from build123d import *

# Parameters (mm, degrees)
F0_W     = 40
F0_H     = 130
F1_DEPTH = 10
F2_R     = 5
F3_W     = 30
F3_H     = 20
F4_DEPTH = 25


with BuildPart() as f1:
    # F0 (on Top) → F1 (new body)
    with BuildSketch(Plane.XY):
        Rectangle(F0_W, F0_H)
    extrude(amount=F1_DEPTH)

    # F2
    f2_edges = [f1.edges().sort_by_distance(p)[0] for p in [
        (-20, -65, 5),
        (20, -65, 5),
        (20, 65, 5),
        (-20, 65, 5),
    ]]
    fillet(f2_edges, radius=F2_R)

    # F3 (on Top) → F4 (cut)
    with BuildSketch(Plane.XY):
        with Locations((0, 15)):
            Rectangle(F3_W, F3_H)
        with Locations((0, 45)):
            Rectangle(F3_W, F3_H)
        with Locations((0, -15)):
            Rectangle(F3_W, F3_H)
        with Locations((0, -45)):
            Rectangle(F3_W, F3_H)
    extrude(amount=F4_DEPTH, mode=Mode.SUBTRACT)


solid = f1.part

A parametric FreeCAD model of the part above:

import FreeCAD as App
import Part
import Sketcher


def edges_at(feature, points):
    """Names of the edges that pass closest to the given points."""
    edges = feature.Shape.Edges
    near = lambda p: min(range(len(edges)), key=lambda i: edges[i].distToShape(Part.Vertex(*p))[0])
    return sorted({f"Edge{near(p) + 1}" for p in points})

doc = App.newDocument("Part")
body = doc.addObject("PartDesign::Body", "Body")

# Sketch on XY plane
sketch1 = doc.addObject("Sketcher::SketchObject", "Sketch")
body.addObject(sketch1)
sketch1.AttachmentSupport = (doc.XY_Plane, [""])
sketch1.MapMode = "FlatFace"
sketch1.addGeometry(Part.LineSegment(App.Vector(-20, 65, 0), App.Vector(-20, -65, 0)), False)
sketch1.addGeometry(Part.LineSegment(App.Vector(-20, -65, 0), App.Vector(20, -65, 0)), False)
sketch1.addGeometry(Part.LineSegment(App.Vector(20, -65, 0), App.Vector(20, 65, 0)), False)
sketch1.addGeometry(Part.LineSegment(App.Vector(20, 65, 0), App.Vector(-20, 65, 0)), False)
sketch1.addConstraint(Sketcher.Constraint("Coincident", 0, 2, 1, 1))
sketch1.addConstraint(Sketcher.Constraint("Coincident", 1, 2, 2, 1))
sketch1.addConstraint(Sketcher.Constraint("Coincident", 2, 2, 3, 1))
sketch1.addConstraint(Sketcher.Constraint("Coincident", 3, 2, 0, 1))
sketch1.addConstraint(Sketcher.Constraint("Vertical", 0))
sketch1.addConstraint(Sketcher.Constraint("Horizontal", 1))
sketch1.addConstraint(Sketcher.Constraint("Vertical", 2))
sketch1.addConstraint(Sketcher.Constraint("Horizontal", 3))
sketch1.addConstraint(Sketcher.Constraint("Symmetric", 0, 2, 2, 2, -1, 1))
sketch1.addConstraint(Sketcher.Constraint("DistanceX", 1, 1, 1, 2, 40.0))
sketch1.addConstraint(Sketcher.Constraint("DistanceY", 0, 2, 0, 1, 130.0))
pad1 = doc.addObject("PartDesign::Pad", "Pad")
body.addObject(pad1)
pad1.Profile = sketch1
pad1.Length = 10
doc.recompute()

fillet = doc.addObject("PartDesign::Fillet", "Fillet")
body.addObject(fillet)
fillet.Base = (pad1, edges_at(pad1, [
    (-20, -65, 5),
    (20, -65, 5),
    (20, 65, 5),
    (-20, 65, 5),
]))
fillet.Radius = 5

# Sketch on XY plane
sketch2 = doc.addObject("Sketcher::SketchObject", "Sketch001")
body.addObject(sketch2)
sketch2.AttachmentSupport = (doc.XY_Plane, [""])
sketch2.MapMode = "FlatFace"
sketch2.addGeometry(Part.LineSegment(App.Vector(-15, 25, 0), App.Vector(-15, 5, 0)), False)
sketch2.addGeometry(Part.LineSegment(App.Vector(-15, 5, 0), App.Vector(15, 5, 0)), False)
sketch2.addGeometry(Part.LineSegment(App.Vector(15, 5, 0), App.Vector(15, 25, 0)), False)
sketch2.addGeometry(Part.LineSegment(App.Vector(15, 25, 0), App.Vector(-15, 25, 0)), False)
sketch2.addGeometry(Part.LineSegment(App.Vector(-15, 55, 0), App.Vector(-15, 35, 0)), False)
sketch2.addGeometry(Part.LineSegment(App.Vector(-15, 35, 0), App.Vector(15, 35, 0)), False)
sketch2.addGeometry(Part.LineSegment(App.Vector(15, 35, 0), App.Vector(15, 55, 0)), False)
sketch2.addGeometry(Part.LineSegment(App.Vector(15, 55, 0), App.Vector(-15, 55, 0)), False)
sketch2.addGeometry(Part.LineSegment(App.Vector(-15, -5, 0), App.Vector(-15, -25, 0)), False)
sketch2.addGeometry(Part.LineSegment(App.Vector(-15, -25, 0), App.Vector(15, -25, 0)), False)
sketch2.addGeometry(Part.LineSegment(App.Vector(15, -25, 0), App.Vector(15, -5, 0)), False)
sketch2.addGeometry(Part.LineSegment(App.Vector(15, -5, 0), App.Vector(-15, -5, 0)), False)
sketch2.addGeometry(Part.LineSegment(App.Vector(-15, -35, 0), App.Vector(-15, -55, 0)), False)
sketch2.addGeometry(Part.LineSegment(App.Vector(-15, -55, 0), App.Vector(15, -55, 0)), False)
sketch2.addGeometry(Part.LineSegment(App.Vector(15, -55, 0), App.Vector(15, -35, 0)), False)
sketch2.addGeometry(Part.LineSegment(App.Vector(15, -35, 0), App.Vector(-15, -35, 0)), False)
sketch2.addConstraint(Sketcher.Constraint("Coincident", 0, 2, 1, 1))
sketch2.addConstraint(Sketcher.Constraint("Coincident", 1, 2, 2, 1))
sketch2.addConstraint(Sketcher.Constraint("Coincident", 2, 2, 3, 1))
sketch2.addConstraint(Sketcher.Constraint("Coincident", 3, 2, 0, 1))
sketch2.addConstraint(Sketcher.Constraint("Coincident", 4, 2, 5, 1))
sketch2.addConstraint(Sketcher.Constraint("Coincident", 5, 2, 6, 1))
sketch2.addConstraint(Sketcher.Constraint("Coincident", 6, 2, 7, 1))
sketch2.addConstraint(Sketcher.Constraint("Coincident", 7, 2, 4, 1))
sketch2.addConstraint(Sketcher.Constraint("Coincident", 8, 2, 9, 1))
sketch2.addConstraint(Sketcher.Constraint("Coincident", 9, 2, 10, 1))
sketch2.addConstraint(Sketcher.Constraint("Coincident", 10, 2, 11, 1))
sketch2.addConstraint(Sketcher.Constraint("Coincident", 11, 2, 8, 1))
sketch2.addConstraint(Sketcher.Constraint("Coincident", 12, 2, 13, 1))
sketch2.addConstraint(Sketcher.Constraint("Coincident", 13, 2, 14, 1))
sketch2.addConstraint(Sketcher.Constraint("Coincident", 14, 2, 15, 1))
sketch2.addConstraint(Sketcher.Constraint("Coincident", 15, 2, 12, 1))
sketch2.addConstraint(Sketcher.Constraint("Vertical", 0))
sketch2.addConstraint(Sketcher.Constraint("Horizontal", 1))
sketch2.addConstraint(Sketcher.Constraint("Vertical", 2))
sketch2.addConstraint(Sketcher.Constraint("Horizontal", 3))
sketch2.addConstraint(Sketcher.Constraint("Vertical", 4))
sketch2.addConstraint(Sketcher.Constraint("Horizontal", 5))
sketch2.addConstraint(Sketcher.Constraint("Vertical", 6))
sketch2.addConstraint(Sketcher.Constraint("Horizontal", 7))
sketch2.addConstraint(Sketcher.Constraint("Vertical", 8))
sketch2.addConstraint(Sketcher.Constraint("Horizontal", 9))
sketch2.addConstraint(Sketcher.Constraint("Vertical", 10))
sketch2.addConstraint(Sketcher.Constraint("Horizontal", 11))
sketch2.addConstraint(Sketcher.Constraint("Vertical", 12))
sketch2.addConstraint(Sketcher.Constraint("Horizontal", 13))
sketch2.addConstraint(Sketcher.Constraint("Vertical", 14))
sketch2.addConstraint(Sketcher.Constraint("Horizontal", 15))
sketch2.addConstraint(Sketcher.Constraint("Symmetric", 2, 2, 8, 2, -1, 1))
sketch2.addConstraint(Sketcher.Constraint("Symmetric", 0, 2, 10, 2, -1, 1))
sketch2.addConstraint(Sketcher.Constraint("Symmetric", 6, 2, 12, 2, -1, 1))
sketch2.addConstraint(Sketcher.Constraint("Symmetric", 4, 2, 14, 2, -1, 1))
sketch2.addConstraint(Sketcher.Constraint("Vertical", 3, 2, 4, 2))
sketch2.addConstraint(Sketcher.Constraint("Vertical", 2, 2, 5, 2))
sketch2.addConstraint(Sketcher.Constraint("Vertical", 7, 2, 8, 2))
sketch2.addConstraint(Sketcher.Constraint("Equal", 2, 4))
sketch2.addConstraint(Sketcher.Constraint("DistanceX", 1, 1, 1, 2, 30.0))
sketch2.addConstraint(Sketcher.Constraint("DistanceY", 0, 2, 0, 1, 20.0))
sketch2.addConstraint(Sketcher.Constraint("DistanceY", -1, 1, 0, 2, 5.0))
sketch2.addConstraint(Sketcher.Constraint("DistanceY", -1, 1, 4, 2, 35.0))
pocket1 = doc.addObject("PartDesign::Pocket", "Pocket")
body.addObject(pocket1)
pocket1.Profile = sketch2
pocket1.Length = 25
pocket1.Reversed = True

doc.recompute()
